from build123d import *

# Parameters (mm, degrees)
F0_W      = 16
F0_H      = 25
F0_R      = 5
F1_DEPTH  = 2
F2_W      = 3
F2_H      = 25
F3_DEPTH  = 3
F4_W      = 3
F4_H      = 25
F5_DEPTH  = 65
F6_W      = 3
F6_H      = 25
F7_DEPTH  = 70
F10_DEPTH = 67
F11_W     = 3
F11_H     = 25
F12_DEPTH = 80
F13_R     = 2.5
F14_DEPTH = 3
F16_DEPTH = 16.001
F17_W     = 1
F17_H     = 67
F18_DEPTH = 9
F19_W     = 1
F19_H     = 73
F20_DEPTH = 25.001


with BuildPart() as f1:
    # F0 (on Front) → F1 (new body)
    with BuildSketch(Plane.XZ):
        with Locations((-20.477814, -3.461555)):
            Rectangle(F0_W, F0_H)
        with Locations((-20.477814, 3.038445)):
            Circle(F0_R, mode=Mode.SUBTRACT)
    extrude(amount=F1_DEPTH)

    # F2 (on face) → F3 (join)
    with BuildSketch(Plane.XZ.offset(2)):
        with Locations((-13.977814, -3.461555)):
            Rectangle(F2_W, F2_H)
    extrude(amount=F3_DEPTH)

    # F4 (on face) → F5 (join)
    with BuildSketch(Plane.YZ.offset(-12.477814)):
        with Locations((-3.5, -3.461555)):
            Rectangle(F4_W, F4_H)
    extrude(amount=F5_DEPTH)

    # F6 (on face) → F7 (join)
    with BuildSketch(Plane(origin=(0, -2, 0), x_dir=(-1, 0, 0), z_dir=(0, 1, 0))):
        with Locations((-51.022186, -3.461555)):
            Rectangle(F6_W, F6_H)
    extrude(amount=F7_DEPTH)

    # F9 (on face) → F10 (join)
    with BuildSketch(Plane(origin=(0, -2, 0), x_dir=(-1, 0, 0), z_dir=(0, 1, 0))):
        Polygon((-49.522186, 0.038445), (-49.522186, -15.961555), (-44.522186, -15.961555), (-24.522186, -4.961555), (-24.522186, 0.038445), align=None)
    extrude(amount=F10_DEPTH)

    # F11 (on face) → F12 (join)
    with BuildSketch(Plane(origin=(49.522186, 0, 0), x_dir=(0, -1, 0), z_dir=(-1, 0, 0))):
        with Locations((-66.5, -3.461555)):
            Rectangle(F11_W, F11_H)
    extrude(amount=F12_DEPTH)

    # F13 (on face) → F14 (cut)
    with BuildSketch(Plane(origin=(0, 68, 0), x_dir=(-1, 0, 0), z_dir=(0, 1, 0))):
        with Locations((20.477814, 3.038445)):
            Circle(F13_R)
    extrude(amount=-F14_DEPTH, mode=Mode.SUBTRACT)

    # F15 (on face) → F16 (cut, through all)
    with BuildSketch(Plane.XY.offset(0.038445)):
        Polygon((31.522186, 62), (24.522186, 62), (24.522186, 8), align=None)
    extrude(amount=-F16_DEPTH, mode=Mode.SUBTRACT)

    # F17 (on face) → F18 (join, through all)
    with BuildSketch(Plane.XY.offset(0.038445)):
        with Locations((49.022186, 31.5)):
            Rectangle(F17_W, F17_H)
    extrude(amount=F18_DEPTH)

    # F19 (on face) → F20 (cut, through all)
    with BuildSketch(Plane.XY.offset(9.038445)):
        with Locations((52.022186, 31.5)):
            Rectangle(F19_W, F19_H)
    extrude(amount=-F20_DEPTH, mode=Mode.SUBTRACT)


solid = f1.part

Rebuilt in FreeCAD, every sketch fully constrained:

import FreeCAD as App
import Part
import Sketcher

V = App.Vector

doc = App.newDocument("Part")
body = doc.addObject("PartDesign::Body", "Body")

# Sketch on XZ plane
sketch1 = body.newObject("Sketcher::SketchObject", "Sketch")
sketch1.AttachmentSupport = (doc.getObject("XZ_Plane"), [""])
sketch1.MapMode = "FlatFace"
sketch1.addGeometry([
    Part.LineSegment(V(-28, 9, 0), V(-28, -16, 0)),  # 0
    Part.LineSegment(V(-28, -16, 0), V(-12, -16, 0)),  # 1
    Part.LineSegment(V(-12, -16, 0), V(-12, 9, 0)),  # 2
    Part.LineSegment(V(-12, 9, 0), V(-28, 9, 0)),  # 3
    Part.Circle(V(-20, 3, 0), V(0, 0, 1), 5),  # 4
], False)
sketch1.addConstraint([
    Sketcher.Constraint("Coincident", 0, 2, 1, 1),
    Sketcher.Constraint("Coincident", 1, 2, 2, 1),
    Sketcher.Constraint("Coincident", 2, 2, 3, 1),
    Sketcher.Constraint("Coincident", 3, 2, 0, 1),
    Sketcher.Constraint("Vertical", 0),
    Sketcher.Constraint("Horizontal", 1),
    Sketcher.Constraint("Vertical", 2),
    Sketcher.Constraint("Horizontal", 3),
    Sketcher.Constraint("Diameter", 4, 10.0),
    Sketcher.Constraint("DistanceX", 1, 1, 1, 2, 16.0),
    Sketcher.Constraint("DistanceY", 0, 2, 0, 1, 25.0),
    Sketcher.Constraint("DistanceX", 0, 2, 4, 3, 8.0),
    Sketcher.Constraint("DistanceY", 0, 2, 4, 3, 19.0),
    Sketcher.Constraint("DistanceX", 4, 3, -1, 1, 20.477814),
    Sketcher.Constraint("DistanceY", -1, 1, 4, 3, 3.038445),
])
pad1 = body.newObject("PartDesign::Pad", "Pad")
pad1.Profile = sketch1
pad1.Length = 2

# Sketch on XZ plane
sketch2 = body.newObject("Sketcher::SketchObject", "Sketch001")
sketch2.AttachmentSupport = (doc.getObject("XZ_Plane"), [""])
sketch2.MapMode = "FlatFace"
sketch2.AttachmentOffset = App.Placement(V(0, 0, 2), App.Rotation())
sketch2.addGeometry([
    Part.LineSegment(V(-15.5, 9, 0), V(-15.5, -16, 0)),
    Part.LineSegment(V(-15.5, -16, 0), V(-12.5, -16, 0)),
    Part.LineSegment(V(-12.5, -16, 0), V(-12.5, 9, 0)),
    Part.LineSegment(V(-12.5, 9, 0), V(-15.5, 9, 0)),
], False)
sketch2.addConstraint([
    Sketcher.Constraint("Coincident", 0, 2, 1, 1),
    Sketcher.Constraint("Coincident", 1, 2, 2, 1),
    Sketcher.Constraint("Coincident", 2, 2, 3, 1),
    Sketcher.Constraint("Coincident", 3, 2, 0, 1),
    Sketcher.Constraint("Vertical", 0),
    Sketcher.Constraint("Horizontal", 1),
    Sketcher.Constraint("Vertical", 2),
    Sketcher.Constraint("Horizontal", 3),
    Sketcher.Constraint("DistanceX", 1, 1, 1, 2, 3.0),
    Sketcher.Constraint("DistanceY", 0, 2, 0, 1, 25.0),
    Sketcher.Constraint("DistanceX", 0, 2, -1, 1, 15.477814),
    Sketcher.Constraint("DistanceY", 0, 2, -1, 1, 15.961555),
])
pad2 = body.newObject("PartDesign::Pad", "Pad001")
pad2.Profile = sketch2
pad2.Length = 3

# Sketch on YZ plane
sketch3 = body.newObject("Sketcher::SketchObject", "Sketch002")
sketch3.AttachmentSupport = (doc.getObject("YZ_Plane"), [""])
sketch3.MapMode = "FlatFace"
sketch3.AttachmentOffset = App.Placement(V(0, 0, -12.477814), App.Rotation())
sketch3.addGeometry([
    Part.LineSegment(V(-5, 9, 0), V(-5, -16, 0)),
    Part.LineSegment(V(-5, -16, 0), V(-2, -16, 0)),
    Part.LineSegment(V(-2, -16, 0), V(-2, 9, 0)),
    Part.LineSegment(V(-2, 9, 0), V(-5, 9, 0)),
], False)
sketch3.addConstraint([
    Sketcher.Constraint("Coincident", 0, 2, 1, 1),
    Sketcher.Constraint("Coincident", 1, 2, 2, 1),
    Sketcher.Constraint("Coincident", 2, 2, 3, 1),
    Sketcher.Constraint("Coincident", 3, 2, 0, 1),
    Sketcher.Constraint("Vertical", 0),
    Sketcher.Constraint("Horizontal", 1),
    Sketcher.Constraint("Vertical", 2),
    Sketcher.Constraint("Horizontal", 3),
    Sketcher.Constraint("DistanceX", 1, 1, 1, 2, 3.0),
    Sketcher.Constraint("DistanceY", 0, 2, 0, 1, 25.0),
    Sketcher.Constraint("DistanceX", 0, 2, -1, 1, 5.0),
    Sketcher.Constraint("DistanceY", 0, 2, -1, 1, 15.961555),
])
pad3 = body.newObject("PartDesign::Pad", "Pad002")
pad3.Profile = sketch3
pad3.Length = 65

# Sketch on XZ plane
sketch4 = body.newObject("Sketcher::SketchObject", "Sketch003")
sketch4.AttachmentSupport = (doc.getObject("XZ_Plane"), [""])
sketch4.MapMode = "FlatFace"
sketch4.AttachmentOffset = App.Placement(V(0, 0, 2), App.Rotation())
sketch4.addGeometry([
    Part.LineSegment(V(52.5, 9, 0), V(52.5, -16, 0)),
    Part.LineSegment(V(52.5, -16, 0), V(49.5, -16, 0)),
    Part.LineSegment(V(49.5, -16, 0), V(49.5, 9, 0)),
    Part.LineSegment(V(49.5, 9, 0), V(52.5, 9, 0)),
], False)
sketch4.addConstraint([
    Sketcher.Constraint("Coincident", 0, 2, 1, 1),
    Sketcher.Constraint("Coincident", 1, 2, 2, 1),
    Sketcher.Constraint("Coincident", 2, 2, 3, 1),
    Sketcher.Constraint("Coincident", 3, 2, 0, 1),
    Sketcher.Constraint("Vertical", 0),
    Sketcher.Constraint("Horizontal", 1),
    Sketcher.Constraint("Vertical", 2),
    Sketcher.Constraint("Horizontal", 3),
    Sketcher.Constraint("DistanceX", 1, 2, 1, 1, 3.0),
    Sketcher.Constraint("DistanceY", 0, 2, 0, 1, 25.0),
    Sketcher.Constraint("DistanceX", -1, 1, 0, 2, 52.522186),
    Sketcher.Constraint("DistanceY", 0, 2, -1, 1, 15.961555),
])
pad4 = body.newObject("PartDesign::Pad", "Pad003")
pad4.Profile = sketch4
pad4.Length = 70
pad4.Reversed = True

# Sketch on XZ plane
sketch5 = body.newObject("Sketcher::SketchObject", "Sketch004")
sketch5.AttachmentSupport = (doc.getObject("XZ_Plane"), [""])
sketch5.MapMode = "FlatFace"
sketch5.AttachmentOffset = App.Placement(V(0, 0, 2), App.Rotation())
sketch5.addGeometry([
    Part.LineSegment(V(50, 0, 0), V(50, -16, 0)),  # 0
    Part.LineSegment(V(50, -16, 0), V(45, -16, 0)),  # 1
    Part.LineSegment(V(45, -16, 0), V(25, -5, 0)),  # 2
    Part.LineSegment(V(25, -5, 0), V(25, 0, 0)),  # 3
    Part.LineSegment(V(25, 0, 0), V(50, 0, 0)),  # 4
], False)
sketch5.addConstraint([
    Sketcher.Constraint("Coincident", 0, 2, 1, 1),
    Sketcher.Constraint("Coincident", 1, 2, 2, 1),
    Sketcher.Constraint("Coincident", 2, 2, 3, 1),
    Sketcher.Constraint("Coincident", 3, 2, 4, 1),
    Sketcher.Constraint("Coincident", 4, 2, 0, 1),
    Sketcher.Constraint("Vertical", 0),
    Sketcher.Constraint("Horizontal", 1),
    Sketcher.Constraint("Vertical", 3),
    Sketcher.Constraint("Horizontal", 4),
    Sketcher.Constraint("Equal", 1, 3),
    Sketcher.Constraint("DistanceX", 1, 2, 1, 1, 5.0),
    Sketcher.Constraint("DistanceX", 4, 1, 4, 2, 25.0),
    Sketcher.Constraint("DistanceY", 0, 2, 0, 1, 16.0),
    Sketcher.Constraint("DistanceX", -1, 1, 0, 2, 49.522186),
    Sketcher.Constraint("DistanceY", 0, 2, -1, 1, 15.961555),
])
pad5 = body.newObject("PartDesign::Pad", "Pad004")
pad5.Profile = sketch5
pad5.Length = 67
pad5.Reversed = True

# Sketch on YZ plane
sketch6 = body.newObject("Sketcher::SketchObject", "Sketch005")
sketch6.AttachmentSupport = (doc.getObject("YZ_Plane"), [""])
sketch6.MapMode = "FlatFace"
sketch6.AttachmentOffset = App.Placement(V(0, 0, 49.522186), App.Rotation())
sketch6.addGeometry([
    Part.LineSegment(V(68, 9, 0), V(68, -16, 0)),
    Part.LineSegment(V(68, -16, 0), V(65, -16, 0)),
    Part.LineSegment(V(65, -16, 0), V(65, 9, 0)),
    Part.LineSegment(V(65, 9, 0), V(68, 9, 0)),
], False)
sketch6.addConstraint([
    Sketcher.Constraint("Coincident", 0, 2, 1, 1),
    Sketcher.Constraint("Coincident", 1, 2, 2, 1),
    Sketcher.Constraint("Coincident", 2, 2, 3, 1),
    Sketcher.Constraint("Coincident", 3, 2, 0, 1),
    Sketcher.Constraint("Vertical", 0),
    Sketcher.Constraint("Horizontal", 1),
    Sketcher.Constraint("Vertical", 2),
    Sketcher.Constraint("Horizontal", 3),
    Sketcher.Constraint("DistanceX", 1, 2, 1, 1, 3.0),
    Sketcher.Constraint("DistanceY", 0, 2, 0, 1, 25.0),
    Sketcher.Constraint("DistanceX", -1, 1, 0, 2, 68.0),
    Sketcher.Constraint("DistanceY", 0, 2, -1, 1, 15.961555),
])
pad6 = body.newObject("PartDesign::Pad", "Pad005")
pad6.Profile = sketch6
pad6.Length = 80
pad6.Reversed = True

# Sketch on XZ plane
sketch7 = body.newObject("Sketcher::SketchObject", "Sketch006")
sketch7.AttachmentSupport = (doc.getObject("XZ_Plane"), [""])
sketch7.MapMode = "FlatFace"
sketch7.AttachmentOffset = App.Placement(V(0, 0, -68), App.Rotation())
sketch7.addGeometry(Part.Circle(V(-20.5, 3, 0), V(0, 0, 1), 2.5), False)
sketch7.addConstraint([
    Sketcher.Constraint("Diameter", 0, 5.0),
    Sketcher.Constraint("DistanceX", 0, 3, -1, 1, 20.477814),
    Sketcher.Constraint("DistanceY", -1, 1, 0, 3, 3.038445),
])
pocket1 = body.newObject("PartDesign::Pocket", "Pocket")
pocket1.Profile = sketch7
pocket1.Length = 3
pocket1.Reversed = True

# Sketch on XY plane
sketch8 = body.newObject("Sketcher::SketchObject", "Sketch007")
sketch8.AttachmentSupport = (doc.getObject("XY_Plane"), [""])
sketch8.MapMode = "FlatFace"
sketch8.AttachmentOffset = App.Placement(V(0, 0, 0.038445), App.Rotation())
sketch8.addGeometry([
    Part.LineSegment(V(32, 62, 0), V(25, 62, 0)),
    Part.LineSegment(V(25, 62, 0), V(25, 8, 0)),
    Part.LineSegment(V(25, 8, 0), V(32, 62, 0)),
], False)
sketch8.addConstraint([
    Sketcher.Constraint("Coincident", 0, 2, 1, 1),
    Sketcher.Constraint("Coincident", 1, 2, 2, 1),
    Sketcher.Constraint("Coincident", 2, 2, 0, 1),
    Sketcher.Constraint("Horizontal", 0),
    Sketcher.Constraint("Vertical", 1),
    Sketcher.Constraint("DistanceX", 0, 2, 0, 1, 7.0),
    Sketcher.Constraint("DistanceY", 1, 2, 1, 1, 54.0),
    Sketcher.Constraint("DistanceY", -1, 1, 0, 2, 62.0),
    Sketcher.Constraint("DistanceX", -1, 1, 0, 2, 24.522186),
])
pocket2 = body.newObject("PartDesign::Pocket", "Pocket001")
pocket2.Profile = sketch8
pocket2.Type = "ThroughAll"

# Sketch on XY plane
sketch9 = body.newObject("Sketcher::SketchObject", "Sketch008")
sketch9.AttachmentSupport = (doc.getObject("XY_Plane"), [""])
sketch9.MapMode = "FlatFace"
sketch9.AttachmentOffset = App.Placement(V(0, 0, 0.038445), App.Rotation())
sketch9.addGeometry([
    Part.LineSegment(V(48.5, 65, 0), V(48.5, -2, 0)),
    Part.LineSegment(V(48.5, -2, 0), V(49.5, -2, 0)),
    Part.LineSegment(V(49.5, -2, 0), V(49.5, 65, 0)),
    Part.LineSegment(V(49.5, 65, 0), V(48.5, 65, 0)),
], False)
sketch9.addConstraint([
    Sketcher.Constraint("Coincident", 0, 2, 1, 1),
    Sketcher.Constraint("Coincident", 1, 2, 2, 1),
    Sketcher.Constraint("Coincident", 2, 2, 3, 1),
    Sketcher.Constraint("Coincident", 3, 2, 0, 1),
    Sketcher.Constraint("Vertical", 0),
    Sketcher.Constraint("Horizontal", 1),
    Sketcher.Constraint("Vertical", 2),
    Sketcher.Constraint("Horizontal", 3),
    Sketcher.Constraint("DistanceX", 1, 1, 1, 2, 1.0),
    Sketcher.Constraint("DistanceY", 0, 2, 0, 1, 67.0),
    Sketcher.Constraint("DistanceY", 0, 2, -1, 1, 2.0),
    Sketcher.Constraint("DistanceX", -1, 1, 0, 2, 48.522186),
])
pad7 = body.newObject("PartDesign::Pad", "Pad006")
pad7.Profile = sketch9
pad7.Length = 9

# Sketch on XY plane
sketch10 = body.newObject("Sketcher::SketchObject", "Sketch009")
sketch10.AttachmentSupport = (doc.getObject("XY_Plane"), [""])
sketch10.MapMode = "FlatFace"
sketch10.AttachmentOffset = App.Placement(V(0, 0, 9.038445), App.Rotation())
sketch10.addGeometry([
    Part.LineSegment(V(51.5, 68, 0), V(51.5, -5, 0)),
    Part.LineSegment(V(51.5, -5, 0), V(52.5, -5, 0)),
    Part.LineSegment(V(52.5, -5, 0), V(52.5, 68, 0)),
    Part.LineSegment(V(52.5, 68, 0), V(51.5, 68, 0)),
], False)
sketch10.addConstraint([
    Sketcher.Constraint("Coincident", 0, 2, 1, 1),
    Sketcher.Constraint("Coincident", 1, 2, 2, 1),
    Sketcher.Constraint("Coincident", 2, 2, 3, 1),
    Sketcher.Constraint("Coincident", 3, 2, 0, 1),
    Sketcher.Constraint("Vertical", 0),
    Sketcher.Constraint("Horizontal", 1),
    Sketcher.Constraint("Vertical", 2),
    Sketcher.Constraint("Horizontal", 3),
    Sketcher.Constraint("DistanceX", 1, 1, 1, 2, 1.0),
    Sketcher.Constraint("DistanceY", 0, 2, 0, 1, 73.0),
    Sketcher.Constraint("DistanceY", 0, 2, -1, 1, 5.0),
    Sketcher.Constraint("DistanceX", -1, 1, 0, 2, 51.522186),
])
pocket3 = body.newObject("PartDesign::Pocket", "Pocket002")
pocket3.Profile = sketch10
pocket3.Type = "ThroughAll"

doc.recompute()
